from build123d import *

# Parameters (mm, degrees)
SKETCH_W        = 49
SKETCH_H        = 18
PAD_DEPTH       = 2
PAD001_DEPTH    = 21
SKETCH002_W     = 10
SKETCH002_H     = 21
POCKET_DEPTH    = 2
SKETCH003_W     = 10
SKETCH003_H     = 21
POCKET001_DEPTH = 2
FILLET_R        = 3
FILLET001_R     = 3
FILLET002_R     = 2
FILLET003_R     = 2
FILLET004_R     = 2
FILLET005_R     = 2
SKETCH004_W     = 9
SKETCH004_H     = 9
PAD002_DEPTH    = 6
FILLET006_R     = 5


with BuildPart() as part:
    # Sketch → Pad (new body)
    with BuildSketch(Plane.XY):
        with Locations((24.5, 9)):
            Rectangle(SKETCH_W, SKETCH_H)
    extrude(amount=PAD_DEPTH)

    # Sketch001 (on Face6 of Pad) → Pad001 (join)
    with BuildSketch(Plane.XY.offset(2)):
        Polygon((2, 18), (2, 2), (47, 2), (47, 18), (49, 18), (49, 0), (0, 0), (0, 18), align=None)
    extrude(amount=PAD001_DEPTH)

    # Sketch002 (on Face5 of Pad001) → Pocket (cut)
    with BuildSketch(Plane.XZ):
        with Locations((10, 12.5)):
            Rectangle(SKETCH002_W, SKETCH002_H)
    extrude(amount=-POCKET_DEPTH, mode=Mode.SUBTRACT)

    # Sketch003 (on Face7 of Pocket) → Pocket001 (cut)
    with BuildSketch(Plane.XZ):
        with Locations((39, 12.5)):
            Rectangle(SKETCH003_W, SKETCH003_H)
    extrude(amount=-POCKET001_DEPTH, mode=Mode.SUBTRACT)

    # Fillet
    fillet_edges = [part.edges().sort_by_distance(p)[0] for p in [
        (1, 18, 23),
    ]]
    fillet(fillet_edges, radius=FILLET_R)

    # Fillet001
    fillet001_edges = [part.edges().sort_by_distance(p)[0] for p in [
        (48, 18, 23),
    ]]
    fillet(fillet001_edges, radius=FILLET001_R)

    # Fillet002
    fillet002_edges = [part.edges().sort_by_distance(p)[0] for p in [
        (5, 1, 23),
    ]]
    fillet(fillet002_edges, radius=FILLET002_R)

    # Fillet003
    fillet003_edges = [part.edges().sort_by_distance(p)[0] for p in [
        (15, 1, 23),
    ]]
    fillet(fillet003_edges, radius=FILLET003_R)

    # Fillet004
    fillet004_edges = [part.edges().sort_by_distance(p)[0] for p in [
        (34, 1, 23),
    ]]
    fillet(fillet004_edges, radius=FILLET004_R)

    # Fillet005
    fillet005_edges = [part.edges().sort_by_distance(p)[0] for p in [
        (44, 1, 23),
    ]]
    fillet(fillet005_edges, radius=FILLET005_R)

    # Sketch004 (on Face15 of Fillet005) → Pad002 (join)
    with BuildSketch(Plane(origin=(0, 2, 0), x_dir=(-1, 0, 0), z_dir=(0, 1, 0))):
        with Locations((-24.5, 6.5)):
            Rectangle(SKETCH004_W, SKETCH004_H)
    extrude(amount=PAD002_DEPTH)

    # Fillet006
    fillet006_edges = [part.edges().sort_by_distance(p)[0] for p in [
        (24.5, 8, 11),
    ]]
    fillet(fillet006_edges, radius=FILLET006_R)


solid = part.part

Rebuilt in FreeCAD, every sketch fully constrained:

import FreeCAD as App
import Part
import Sketcher

V = App.Vector


def edges_at(feature, points):
    """Names of the edges that pass closest to the given points."""
    edges = feature.Shape.Edges
    near = lambda p: min(range(len(edges)), key=lambda i: edges[i].distToShape(Part.Vertex(*p))[0])
    return sorted({f"Edge{near(p) + 1}" for p in points})


def add_polygon(sketch, points):
    """Adds a closed chain of lines whose ends are joined by coincident constraints."""
    first, n = sketch.GeometryCount, len(points)
    for a, b in zip(points, points[1:] + points[:1]):
        sketch.addGeometry(Part.LineSegment(App.Vector(*a, 0), App.Vector(*b, 0)), False)
    for i in range(n):
        sketch.addConstraint(Sketcher.Constraint("Coincident", first + i, 2, first + (i + 1) % n, 1))

doc = App.newDocument("Part")
body = doc.addObject("PartDesign::Body", "Body")

sketch1 = body.newObject("Sketcher::SketchObject", "Sketch")
sketch1.AttachmentSupport = (doc.getObject("XY_Plane"), [""])
sketch1.MapMode = "FlatFace"
add_polygon(sketch1, [(0, 18), (0, 0), (49, 0), (49, 18)])
sketch1.addConstraint(Sketcher.Constraint("Vertical", 0))
sketch1.addConstraint(Sketcher.Constraint("Horizontal", 1))
sketch1.addConstraint(Sketcher.Constraint("Vertical", 2))
sketch1.addConstraint(Sketcher.Constraint("Horizontal", 3))
sketch1.addConstraint(Sketcher.Constraint("Coincident", 0, 2, -1, 1))
sketch1.addConstraint(Sketcher.Constraint("DistanceX", 1, 1, 1, 2, 49.0))
sketch1.addConstraint(Sketcher.Constraint("DistanceY", 0, 2, 0, 1, 18.0))
pad1 = body.newObject("PartDesign::Pad", "Pad")
pad1.Profile = sketch1
pad1.Length = 2

sketch2 = body.newObject("Sketcher::SketchObject", "Sketch001")
sketch2.AttachmentSupport = (doc.getObject("XY_Plane"), [""])
sketch2.MapMode = "FlatFace"
sketch2.AttachmentOffset = App.Placement(V(0, 0, 2), App.Rotation())
add_polygon(sketch2, [(2, 2), (2, 18), (0, 18), (0, 0), (49, 0), (49, 18), (47, 18), (47, 2)])
sketch2.addConstraint(Sketcher.Constraint("Vertical", 0))
sketch2.addConstraint(Sketcher.Constraint("Horizontal", 1))
sketch2.addConstraint(Sketcher.Constraint("Vertical", 2))
sketch2.addConstraint(Sketcher.Constraint("Horizontal", 3))
sketch2.addConstraint(Sketcher.Constraint("Vertical", 4))
sketch2.addConstraint(Sketcher.Constraint("Horizontal", 5))
sketch2.addConstraint(Sketcher.Constraint("Vertical", 6))
sketch2.addConstraint(Sketcher.Constraint("Horizontal", 7))
sketch2.addConstraint(Sketcher.Constraint("Coincident", 2, 2, -1, 1))
sketch2.addConstraint(Sketcher.Constraint("Horizontal", 1, 2, 4, 2))
sketch2.addConstraint(Sketcher.Constraint("Equal", 1, 5))
sketch2.addConstraint(Sketcher.Constraint("DistanceX", 1, 2, 1, 1, 2.0))
sketch2.addConstraint(Sketcher.Constraint("DistanceX", 3, 1, 3, 2, 49.0))
sketch2.addConstraint(Sketcher.Constraint("DistanceY", 0, 1, 0, 2, 16.0))
sketch2.addConstraint(Sketcher.Constraint("DistanceY", 2, 2, 2, 1, 18.0))
pad2 = body.newObject("PartDesign::Pad", "Pad001")
pad2.Profile = sketch2
pad2.Length = 21

sketch3 = body.newObject("Sketcher::SketchObject", "Sketch002")
sketch3.AttachmentSupport = (doc.getObject("XZ_Plane"), [""])
sketch3.MapMode = "FlatFace"
add_polygon(sketch3, [(5, 23), (5, 2), (15, 2), (15, 23)])
sketch3.addConstraint(Sketcher.Constraint("Vertical", 0))
sketch3.addConstraint(Sketcher.Constraint("Horizontal", 1))
sketch3.addConstraint(Sketcher.Constraint("Vertical", 2))
sketch3.addConstraint(Sketcher.Constraint("Horizontal", 3))
sketch3.addConstraint(Sketcher.Constraint("DistanceX", 1, 1, 1, 2, 10.0))
sketch3.addConstraint(Sketcher.Constraint("DistanceY", 0, 2, 0, 1, 21.0))
sketch3.addConstraint(Sketcher.Constraint("DistanceX", -1, 1, 0, 2, 5.0))
sketch3.addConstraint(Sketcher.Constraint("DistanceY", -1, 1, 0, 2, 2.0))
pocket1 = body.newObject("PartDesign::Pocket", "Pocket")
pocket1.Profile = sketch3
pocket1.Length = 2

sketch4 = body.newObject("Sketcher::SketchObject", "Sketch003")
sketch4.AttachmentSupport = (doc.getObject("XZ_Plane"), [""])
sketch4.MapMode = "FlatFace"
add_polygon(sketch4, [(34, 23), (34, 2), (44, 2), (44, 23)])
sketch4.addConstraint(Sketcher.Constraint("Vertical", 0))
sketch4.addConstraint(Sketcher.Constraint("Horizontal", 1))
sketch4.addConstraint(Sketcher.Constraint("Vertical", 2))
sketch4.addConstraint(Sketcher.Constraint("Horizontal", 3))
sketch4.addConstraint(Sketcher.Constraint("DistanceX", 1, 1, 1, 2, 10.0))
sketch4.addConstraint(Sketcher.Constraint("DistanceY", 0, 2, 0, 1, 21.0))
sketch4.addConstraint(Sketcher.Constraint("DistanceX", -1, 1, 0, 2, 34.0))
sketch4.addConstraint(Sketcher.Constraint("DistanceY", -1, 1, 0, 2, 2.0))
pocket2 = body.newObject("PartDesign::Pocket", "Pocket001")
pocket2.Profile = sketch4
pocket2.Length = 2
doc.recompute()

fillet = body.newObject("PartDesign::Fillet", "Fillet")
fillet.Base = (pocket2, edges_at(pocket2, [(1, 18, 23)]))
fillet.Radius = 3
doc.recompute()

fillet2 = body.newObject("PartDesign::Fillet", "Fillet001")
fillet2.Base = (fillet, edges_at(fillet, [(48, 18, 23)]))
fillet2.Radius = 3
doc.recompute()

fillet3 = body.newObject("PartDesign::Fillet", "Fillet002")
fillet3.Base = (fillet2, edges_at(fillet2, [(5, 1, 23)]))
fillet3.Radius = 2
doc.recompute()

fillet4 = body.newObject("PartDesign::Fillet", "Fillet003")
fillet4.Base = (fillet3, edges_at(fillet3, [(15, 1, 23)]))
fillet4.Radius = 2
doc.recompute()

fillet5 = body.newObject("PartDesign::Fillet", "Fillet004")
fillet5.Base = (fillet4, edges_at(fillet4, [(34, 1, 23)]))
fillet5.Radius = 2
doc.recompute()

fillet6 = body.newObject("PartDesign::Fillet", "Fillet005")
fillet6.Base = (fillet5, edges_at(fillet5, [(44, 1, 23)]))
fillet6.Radius = 2

sketch5 = body.newObject("Sketcher::SketchObject", "Sketch004")
sketch5.AttachmentSupport = (doc.getObject("XZ_Plane"), [""])
sketch5.MapMode = "FlatFace"
sketch5.AttachmentOffset = App.Placement(V(0, 0, -2), App.Rotation())
add_polygon(sketch5, [(29, 11), (29, 2), (20, 2), (20, 11)])
sketch5.addConstraint(Sketcher.Constraint("Vertical", 0))
sketch5.addConstraint(Sketcher.Constraint("Horizontal", 1))
sketch5.addConstraint(Sketcher.Constraint("Vertical", 2))
sketch5.addConstraint(Sketcher.Constraint("Horizontal", 3))
sketch5.addConstraint(Sketcher.Constraint("Equal", 3, 0))
sketch5.addConstraint(Sketcher.Constraint("DistanceX", 1, 2, 1, 1, 9.0))
sketch5.addConstraint(Sketcher.Constraint("DistanceX", -1, 1, 0, 2, 29.0))
sketch5.addConstraint(Sketcher.Constraint("DistanceY", -1, 1, 0, 2, 2.0))
pad3 = body.newObject("PartDesign::Pad", "Pad002")
pad3.Profile = sketch5
pad3.Length = 6
pad3.Reversed = True
doc.recompute()

fillet7 = body.newObject("PartDesign::Fillet", "Fillet006")
fillet7.Base = (pad3, edges_at(pad3, [(24.5, 8, 11)]))
fillet7.Radius = 5

doc.recompute()
